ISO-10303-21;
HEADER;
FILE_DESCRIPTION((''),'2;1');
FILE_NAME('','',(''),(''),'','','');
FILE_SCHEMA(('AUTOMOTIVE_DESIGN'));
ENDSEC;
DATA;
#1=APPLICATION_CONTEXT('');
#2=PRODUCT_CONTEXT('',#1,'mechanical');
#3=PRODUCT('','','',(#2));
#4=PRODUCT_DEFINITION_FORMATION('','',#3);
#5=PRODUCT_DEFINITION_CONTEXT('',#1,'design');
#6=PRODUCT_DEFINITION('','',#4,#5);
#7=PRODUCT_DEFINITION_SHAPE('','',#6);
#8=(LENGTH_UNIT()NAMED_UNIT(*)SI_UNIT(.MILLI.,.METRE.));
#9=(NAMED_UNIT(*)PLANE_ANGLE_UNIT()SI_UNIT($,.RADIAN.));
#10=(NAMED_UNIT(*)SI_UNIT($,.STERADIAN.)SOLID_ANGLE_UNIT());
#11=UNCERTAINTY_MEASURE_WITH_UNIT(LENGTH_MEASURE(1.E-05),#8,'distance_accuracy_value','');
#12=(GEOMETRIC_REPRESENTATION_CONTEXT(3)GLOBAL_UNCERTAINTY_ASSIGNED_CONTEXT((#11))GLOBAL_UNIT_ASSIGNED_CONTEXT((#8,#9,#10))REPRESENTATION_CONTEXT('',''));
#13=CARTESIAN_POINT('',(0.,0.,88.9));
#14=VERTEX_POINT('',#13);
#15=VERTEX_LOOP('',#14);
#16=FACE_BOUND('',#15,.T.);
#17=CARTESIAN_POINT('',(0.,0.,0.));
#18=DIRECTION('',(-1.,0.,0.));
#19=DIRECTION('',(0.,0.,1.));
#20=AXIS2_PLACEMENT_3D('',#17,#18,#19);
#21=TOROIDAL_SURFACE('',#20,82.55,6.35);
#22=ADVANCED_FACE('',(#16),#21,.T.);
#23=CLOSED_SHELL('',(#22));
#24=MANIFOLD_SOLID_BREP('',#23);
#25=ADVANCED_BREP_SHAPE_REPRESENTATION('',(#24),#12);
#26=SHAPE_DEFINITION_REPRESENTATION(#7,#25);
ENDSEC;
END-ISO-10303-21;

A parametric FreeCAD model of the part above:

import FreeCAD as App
import Part
import Sketcher

V = App.Vector
Q = App.Units.Quantity

doc = App.newDocument("Part")
body = doc.addObject("PartDesign::Body", "Body")

# Sketch on XY plane
sketch1 = doc.addObject("Sketcher::SketchObject", "Sketch")
body.addObject(sketch1)
sketch1.AttachmentSupport = (doc.XY_Plane, [""])
sketch1.MapMode = "FlatFace"
sketch1.addGeometry(Part.Circle(V(0, 83, 0), V(0, 0, 1), 6), False)
sketch1.addConstraint([
    Sketcher.Constraint("PointOnObject", 0, 3, -2),
    Sketcher.Constraint("Diameter", 0, Q("0.5 in")),
    Sketcher.Constraint("DistanceY", -1, 1, 0, 3, Q("3.25 in")),
])
revolution = doc.addObject("PartDesign::Revolution", "Revolution")
body.addObject(revolution)
revolution.Profile = sketch1
revolution.ReferenceAxis = (sketch1, ["H_Axis"])
revolution.Angle = 360

doc.recompute()
